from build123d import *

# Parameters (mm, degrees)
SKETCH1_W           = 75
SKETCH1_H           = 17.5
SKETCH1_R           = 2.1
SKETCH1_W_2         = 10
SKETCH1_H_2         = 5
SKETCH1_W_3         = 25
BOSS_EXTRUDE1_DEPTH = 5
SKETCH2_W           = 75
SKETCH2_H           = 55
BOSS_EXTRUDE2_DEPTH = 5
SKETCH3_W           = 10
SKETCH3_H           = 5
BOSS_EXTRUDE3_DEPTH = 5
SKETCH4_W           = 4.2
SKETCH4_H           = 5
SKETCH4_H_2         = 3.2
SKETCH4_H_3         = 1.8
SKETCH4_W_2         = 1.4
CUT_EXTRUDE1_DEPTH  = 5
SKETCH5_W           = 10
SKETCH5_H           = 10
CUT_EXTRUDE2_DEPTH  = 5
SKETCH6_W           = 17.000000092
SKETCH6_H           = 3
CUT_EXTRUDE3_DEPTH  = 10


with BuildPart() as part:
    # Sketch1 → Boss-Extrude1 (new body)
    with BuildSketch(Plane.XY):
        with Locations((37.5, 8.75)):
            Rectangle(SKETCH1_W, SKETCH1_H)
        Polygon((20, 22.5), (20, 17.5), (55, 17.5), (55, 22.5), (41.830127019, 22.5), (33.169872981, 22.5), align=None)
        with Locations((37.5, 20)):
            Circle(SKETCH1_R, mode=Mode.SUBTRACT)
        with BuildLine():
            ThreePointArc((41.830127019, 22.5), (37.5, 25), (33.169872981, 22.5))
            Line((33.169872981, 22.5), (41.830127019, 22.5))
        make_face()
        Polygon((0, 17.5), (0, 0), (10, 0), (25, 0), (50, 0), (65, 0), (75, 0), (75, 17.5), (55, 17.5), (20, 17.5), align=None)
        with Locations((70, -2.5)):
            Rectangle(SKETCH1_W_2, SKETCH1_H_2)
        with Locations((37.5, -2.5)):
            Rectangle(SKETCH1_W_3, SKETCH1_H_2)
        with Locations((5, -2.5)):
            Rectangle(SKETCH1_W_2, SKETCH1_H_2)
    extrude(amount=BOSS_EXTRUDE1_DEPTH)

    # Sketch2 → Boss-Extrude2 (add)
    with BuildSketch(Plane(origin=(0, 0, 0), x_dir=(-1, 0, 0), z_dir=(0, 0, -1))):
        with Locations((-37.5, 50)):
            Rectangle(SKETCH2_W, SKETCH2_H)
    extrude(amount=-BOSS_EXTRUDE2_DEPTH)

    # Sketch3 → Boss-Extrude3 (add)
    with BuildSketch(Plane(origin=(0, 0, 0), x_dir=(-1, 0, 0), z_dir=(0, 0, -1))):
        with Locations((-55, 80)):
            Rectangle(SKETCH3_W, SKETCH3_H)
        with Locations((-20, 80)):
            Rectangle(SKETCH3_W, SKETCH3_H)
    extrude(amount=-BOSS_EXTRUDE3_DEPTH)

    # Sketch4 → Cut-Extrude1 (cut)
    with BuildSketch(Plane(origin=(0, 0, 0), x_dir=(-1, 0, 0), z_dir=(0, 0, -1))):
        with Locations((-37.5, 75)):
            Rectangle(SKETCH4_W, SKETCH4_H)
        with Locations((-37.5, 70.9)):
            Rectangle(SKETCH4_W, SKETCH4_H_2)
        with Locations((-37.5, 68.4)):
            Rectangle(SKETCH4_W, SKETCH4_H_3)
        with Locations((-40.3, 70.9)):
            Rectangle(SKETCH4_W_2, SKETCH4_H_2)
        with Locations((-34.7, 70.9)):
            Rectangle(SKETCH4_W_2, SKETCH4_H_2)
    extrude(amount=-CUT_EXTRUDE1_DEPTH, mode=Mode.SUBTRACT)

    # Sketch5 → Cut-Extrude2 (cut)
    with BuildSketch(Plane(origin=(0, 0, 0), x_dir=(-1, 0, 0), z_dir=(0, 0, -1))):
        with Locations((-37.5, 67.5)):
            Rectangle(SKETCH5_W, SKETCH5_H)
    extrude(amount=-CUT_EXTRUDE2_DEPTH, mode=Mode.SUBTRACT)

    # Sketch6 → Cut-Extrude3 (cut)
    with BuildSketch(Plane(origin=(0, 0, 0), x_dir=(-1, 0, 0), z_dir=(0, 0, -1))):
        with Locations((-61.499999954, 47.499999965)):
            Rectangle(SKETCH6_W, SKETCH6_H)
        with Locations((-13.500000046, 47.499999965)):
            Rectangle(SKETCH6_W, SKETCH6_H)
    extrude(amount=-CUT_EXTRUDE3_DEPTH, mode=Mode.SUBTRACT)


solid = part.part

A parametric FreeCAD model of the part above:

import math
import FreeCAD as App
import Part
import Sketcher
from FreeCAD import Vector
Q = App.Units.Quantity

doc = App.newDocument("Part")
params = doc.addObject("Spreadsheet::Sheet", "Params")
for row, (alias, value) in enumerate([
    ("sketch1_radius", "5 mm"),
    ("sketch1_diameter", "4.2 mm"),
    ("sketch1_width", "20 mm"),
    ("sketch1_width2", "10 mm"),
    ("sketch1_width3", "15 mm"),
    ("pad1_length", "5 mm"),
    ("sketch2_width", "75 mm"),
    ("sketch2_height", "55 mm"),
    ("pad2_length", "5 mm"),
    ("sketch3_width", "10 mm"),
    ("sketch3_height", "5 mm"),
    ("pad3_length", "5 mm"),
    ("sketch4_height", "5 mm"),
    ("sketch4_width", "1.4 mm"),
    ("sketch4_width2", "4.2 mm"),
    ("sketch4_height2", "3.2 mm"),
    ("sketch4_height3", "1.8 mm"),
    ("pocket1_length", "5 mm"),
    ("sketch5_width", "10 mm"),
    ("pocket2_length", "5 mm"),
    ("sketch6_width", "17 mm"),
    ("sketch6_height", "3 mm"),
    ("pocket3_length", "10 mm"),
], start=1):
    params.set(f"A{row}", alias)
    params.set(f"B{row}", "=" + value)
    params.setAlias(f"B{row}", alias)

body = doc.addObject("PartDesign::Body", "Body")

# Sketch on XY plane
sketch1 = doc.addObject("Sketcher::SketchObject", "Sketch")
body.addObject(sketch1)
sketch1.AttachmentSupport = (doc.XY_Plane, [""])
sketch1.MapMode = "FlatFace"
sketch1.addGeometry([
    Part.LineSegment(Vector(20, 17.5, 0), Vector(0, 17.5, 0)),  # 0
    Part.LineSegment(Vector(0, 17.5, 0), Vector(0, -5, 0)),  # 1
    Part.LineSegment(Vector(0, -5, 0), Vector(10, -5, 0)),  # 2
    Part.LineSegment(Vector(10, -5, 0), Vector(10, 0, 0)),  # 3
    Part.LineSegment(Vector(10, 0, 0), Vector(25, 0, 0)),  # 4
    Part.LineSegment(Vector(25, 0, 0), Vector(25, -5, 0)),  # 5
    Part.LineSegment(Vector(25, -5, 0), Vector(50, -5, 0)),  # 6
    Part.LineSegment(Vector(50, -5, 0), Vector(50, 0, 0)),  # 7
    Part.LineSegment(Vector(50, 0, 0), Vector(65, 0, 0)),  # 8
    Part.LineSegment(Vector(65, 0, 0), Vector(65, -5, 0)),  # 9
    Part.LineSegment(Vector(65, -5, 0), Vector(75, -5, 0)),  # 10
    Part.LineSegment(Vector(75, -5, 0), Vector(75, 17.5, 0)),  # 11
    Part.LineSegment(Vector(75, 17.5, 0), Vector(55, 17.5, 0)),  # 12
    Part.LineSegment(Vector(55, 17.5, 0), Vector(55, 22.5, 0)),  # 13
    Part.LineSegment(Vector(55, 22.5, 0), Vector(41.8, 22.5, 0)),  # 14
    Part.ArcOfCircle(Part.Circle(Vector(37.5, 20, 0), Vector(0, 0, 1), 5), math.radians(30), math.radians(150)),  # 15
    Part.LineSegment(Vector(33.2, 22.5, 0), Vector(20, 22.5, 0)),  # 16
    Part.LineSegment(Vector(20, 22.5, 0), Vector(20, 17.5, 0)),  # 17
    Part.Circle(Vector(37.5, 20, 0), Vector(0, 0, 1), 2.1),  # 18
], False)
sketch1.addConstraint([
    Sketcher.Constraint("Coincident", 0, 2, 1, 1),
    Sketcher.Constraint("Coincident", 1, 2, 2, 1),
    Sketcher.Constraint("Coincident", 2, 2, 3, 1),
    Sketcher.Constraint("Coincident", 3, 2, 4, 1),
    Sketcher.Constraint("Coincident", 4, 2, 5, 1),
    Sketcher.Constraint("Coincident", 5, 2, 6, 1),
    Sketcher.Constraint("Coincident", 6, 2, 7, 1),
    Sketcher.Constraint("Coincident", 7, 2, 8, 1),
    Sketcher.Constraint("Coincident", 8, 2, 9, 1),
    Sketcher.Constraint("Coincident", 9, 2, 10, 1),
    Sketcher.Constraint("Coincident", 10, 2, 11, 1),
    Sketcher.Constraint("Coincident", 11, 2, 12, 1),
    Sketcher.Constraint("Coincident", 12, 2, 13, 1),
    Sketcher.Constraint("Coincident", 13, 2, 14, 1),
    Sketcher.Constraint("Coincident", 14, 2, 15, 1),
    Sketcher.Constraint("Coincident", 15, 2, 16, 1),
    Sketcher.Constraint("Coincident", 16, 2, 17, 1),
    Sketcher.Constraint("Coincident", 17, 2, 0, 1),
    Sketcher.Constraint("Horizontal", 0),
    Sketcher.Constraint("Vertical", 1),
    Sketcher.Constraint("Horizontal", 2),
    Sketcher.Constraint("Vertical", 3),
    Sketcher.Constraint("Horizontal", 4),
    Sketcher.Constraint("Vertical", 5),
    Sketcher.Constraint("Horizontal", 6),
    Sketcher.Constraint("Vertical", 7),
    Sketcher.Constraint("Horizontal", 8),
    Sketcher.Constraint("Vertical", 9),
    Sketcher.Constraint("Horizontal", 10),
    Sketcher.Constraint("Vertical", 11),
    Sketcher.Constraint("Horizontal", 12),
    Sketcher.Constraint("Vertical", 13),
    Sketcher.Constraint("Horizontal", 14),
    Sketcher.Constraint("Horizontal", 16),
    Sketcher.Constraint("Vertical", 17),
    Sketcher.Constraint("Coincident", 18, 3, 15, 3),
    Sketcher.Constraint("PointOnObject", 0, 2, -2),
    Sketcher.Constraint("PointOnObject", 3, 2, -1),
    Sketcher.Constraint("PointOnObject", 7, 2, -1),
    Sketcher.Constraint("Horizontal", 2, 2, 5, 2),
    Sketcher.Constraint("Horizontal", 6, 2, 9, 2),
    Sketcher.Constraint("Horizontal", 0, 2, 11, 2),
    Sketcher.Constraint("Horizontal", 14, 2, 15, 2),
    Sketcher.Constraint("Equal", 4, 8),
    Sketcher.Constraint("Equal", 2, 10),
    Sketcher.Constraint("Equal", 0, 12),
    Sketcher.Constraint("Equal", 14, 16),
    Sketcher.Constraint("Equal", 9, 13),
    Sketcher.Constraint("Radius", 15, Q("5 mm")),
    Sketcher.Constraint("Diameter", 18, Q("4.2 mm")),
    Sketcher.Constraint("DistanceX", 0, 2, 0, 1, Q("20 mm")),
    Sketcher.Constraint("DistanceX", 2, 1, 2, 2, Q("10 mm")),
    Sketcher.Constraint("DistanceX", 4, 1, 4, 2, Q("15 mm")),
    Sketcher.Constraint("DistanceX", 6, 1, 6, 2, Q("25 mm")),
    Sketcher.Constraint("DistanceY", 3, 1, 3, 2, Q("5 mm")),
    Sketcher.Constraint("DistanceY", 1, 2, 1, 1, Q("22.5 mm")),
    Sketcher.Constraint("DistanceY", -1, 1, 15, 3, Q("20 mm")),
])
sketch1.setExpression("Constraints[48]", "Params.sketch1_radius")
sketch1.setExpression("Constraints[49]", "Params.sketch1_diameter")
sketch1.setExpression("Constraints[50]", "Params.sketch1_width")
sketch1.setExpression("Constraints[51]", "Params.sketch1_width2")
sketch1.setExpression("Constraints[52]", "Params.sketch1_width3")
pad1 = doc.addObject("PartDesign::Pad", "Pad")
body.addObject(pad1)
pad1.Profile = sketch1
pad1.setExpression("Length", "Params.pad1_length")

# Sketch on XY plane
sketch2 = doc.addObject("Sketcher::SketchObject", "Sketch001")
body.addObject(sketch2)
sketch2.AttachmentSupport = (doc.XY_Plane, [""])
sketch2.MapMode = "FlatFace"
sketch2.addGeometry([
    Part.LineSegment(Vector(75, 78, 0), Vector(75, 22, 0)),
    Part.LineSegment(Vector(75, 22, 0), Vector(0, 22, 0)),
    Part.LineSegment(Vector(0, 22, 0), Vector(0, 78, 0)),
    Part.LineSegment(Vector(0, 78, 0), Vector(75, 78, 0)),
], False)
sketch2.addConstraint([
    Sketcher.Constraint("Coincident", 0, 2, 1, 1),
    Sketcher.Constraint("Coincident", 1, 2, 2, 1),
    Sketcher.Constraint("Coincident", 2, 2, 3, 1),
    Sketcher.Constraint("Coincident", 3, 2, 0, 1),
    Sketcher.Constraint("Vertical", 0),
    Sketcher.Constraint("Horizontal", 1),
    Sketcher.Constraint("Vertical", 2),
    Sketcher.Constraint("Horizontal", 3),
    Sketcher.Constraint("PointOnObject", 1, 2, -2),
    Sketcher.Constraint("DistanceX", 1, 2, 1, 1, Q("75 mm")),
    Sketcher.Constraint("DistanceY", 0, 2, 0, 1, Q("55 mm")),
    Sketcher.Constraint("DistanceY", -1, 1, 0, 2, Q("22.5 mm")),
])
sketch2.setExpression("Constraints[9]", "Params.sketch2_width")
sketch2.setExpression("Constraints[10]", "Params.sketch2_height")
pad2 = doc.addObject("PartDesign::Pad", "Pad001")
body.addObject(pad2)
pad2.Profile = sketch2
pad2.setExpression("Length", "Params.pad2_length")

# Sketch on XY plane
sketch3 = doc.addObject("Sketcher::SketchObject", "Sketch002")
body.addObject(sketch3)
sketch3.AttachmentSupport = (doc.XY_Plane, [""])
sketch3.MapMode = "FlatFace"
sketch3.addGeometry([
    Part.LineSegment(Vector(60, 82, 0), Vector(60, 78, 0)),  # 0
    Part.LineSegment(Vector(60, 78, 0), Vector(50, 78, 0)),  # 1
    Part.LineSegment(Vector(50, 78, 0), Vector(50, 82, 0)),  # 2
    Part.LineSegment(Vector(50, 82, 0), Vector(60, 82, 0)),  # 3
    Part.LineSegment(Vector(25, 82, 0), Vector(25, 78, 0)),  # 4
    Part.LineSegment(Vector(25, 78, 0), Vector(15, 78, 0)),  # 5
    Part.LineSegment(Vector(15, 78, 0), Vector(15, 82, 0)),  # 6
    Part.LineSegment(Vector(15, 82, 0), Vector(25, 82, 0)),  # 7
], False)
sketch3.addConstraint([
    Sketcher.Constraint("Coincident", 0, 2, 1, 1),
    Sketcher.Constraint("Coincident", 1, 2, 2, 1),
    Sketcher.Constraint("Coincident", 2, 2, 3, 1),
    Sketcher.Constraint("Coincident", 3, 2, 0, 1),
    Sketcher.Constraint("Coincident", 4, 2, 5, 1),
    Sketcher.Constraint("Coincident", 5, 2, 6, 1),
    Sketcher.Constraint("Coincident", 6, 2, 7, 1),
    Sketcher.Constraint("Coincident", 7, 2, 4, 1),
    Sketcher.Constraint("Vertical", 0),
    Sketcher.Constraint("Horizontal", 1),
    Sketcher.Constraint("Vertical", 2),
    Sketcher.Constraint("Horizontal", 3),
    Sketcher.Constraint("Vertical", 4),
    Sketcher.Constraint("Horizontal", 5),
    Sketcher.Constraint("Vertical", 6),
    Sketcher.Constraint("Horizontal", 7),
    Sketcher.Constraint("Horizontal", 1, 2, 4, 2),
    Sketcher.Constraint("Horizontal", 3, 2, 6, 2),
    Sketcher.Constraint("Equal", 3, 5),
    Sketcher.Constraint("DistanceX", 1, 2, 1, 1, Q("10 mm")),
    Sketcher.Constraint("DistanceY", 0, 2, 0, 1, Q("5 mm")),
    Sketcher.Constraint("DistanceX", -1, 1, 0, 2, Q("60 mm")),
    Sketcher.Constraint("DistanceX", -1, 1, 4, 2, Q("25 mm")),
    Sketcher.Constraint("DistanceY", -1, 1, 0, 2, Q("77.5 mm")),
])
sketch3.setExpression("Constraints[19]", "Params.sketch3_width")
sketch3.setExpression("Constraints[20]", "Params.sketch3_height")
pad3 = doc.addObject("PartDesign::Pad", "Pad002")
body.addObject(pad3)
pad3.Profile = sketch3
pad3.setExpression("Length", "Params.pad3_length")

# Sketch on XY plane
sketch4 = doc.addObject("Sketcher::SketchObject", "Sketch003")
body.addObject(sketch4)
sketch4.AttachmentSupport = (doc.XY_Plane, [""])
sketch4.MapMode = "FlatFace"
sketch4.addGeometry([
    Part.LineSegment(Vector(39.6, 77.5, 0), Vector(39.6, 72.5, 0)),  # 0
    Part.LineSegment(Vector(39.6, 72.5, 0), Vector(41, 72.5, 0)),  # 1
    Part.LineSegment(Vector(41, 72.5, 0), Vector(41, 69.3, 0)),  # 2
    Part.LineSegment(Vector(41, 69.3, 0), Vector(39.6, 69.3, 0)),  # 3
    Part.LineSegment(Vector(39.6, 69.3, 0), Vector(39.6, 67.5, 0)),  # 4
    Part.LineSegment(Vector(39.6, 67.5, 0), Vector(35.4, 67.5, 0)),  # 5
    Part.LineSegment(Vector(35.4, 67.5, 0), Vector(35.4, 69.3, 0)),  # 6
    Part.LineSegment(Vector(35.4, 69.3, 0), Vector(34, 69.3, 0)),  # 7
    Part.LineSegment(Vector(34, 69.3, 0), Vector(34, 72.5, 0)),  # 8
    Part.LineSegment(Vector(34, 72.5, 0), Vector(35.4, 72.5, 0)),  # 9
    Part.LineSegment(Vector(35.4, 72.5, 0), Vector(35.4, 77.5, 0)),  # 10
    Part.LineSegment(Vector(35.4, 77.5, 0), Vector(39.6, 77.5, 0)),  # 11
], False)
sketch4.addConstraint([
    Sketcher.Constraint("Coincident", 0, 2, 1, 1),
    Sketcher.Constraint("Coincident", 1, 2, 2, 1),
    Sketcher.Constraint("Coincident", 2, 2, 3, 1),
    Sketcher.Constraint("Coincident", 3, 2, 4, 1),
    Sketcher.Constraint("Coincident", 4, 2, 5, 1),
    Sketcher.Constraint("Coincident", 5, 2, 6, 1),
    Sketcher.Constraint("Coincident", 6, 2, 7, 1),
    Sketcher.Constraint("Coincident", 7, 2, 8, 1),
    Sketcher.Constraint("Coincident", 8, 2, 9, 1),
    Sketcher.Constraint("Coincident", 9, 2, 10, 1),
    Sketcher.Constraint("Coincident", 10, 2, 11, 1),
    Sketcher.Constraint("Coincident", 11, 2, 0, 1),
    Sketcher.Constraint("Vertical", 0),
    Sketcher.Constraint("Horizontal", 1),
    Sketcher.Constraint("Vertical", 2),
    Sketcher.Constraint("Horizontal", 3),
    Sketcher.Constraint("Vertical", 4),
    Sketcher.Constraint("Horizontal", 5),
    Sketcher.Constraint("Vertical", 6),
    Sketcher.Constraint("Horizontal", 7),
    Sketcher.Constraint("Vertical", 8),
    Sketcher.Constraint("Horizontal", 9),
    Sketcher.Constraint("Vertical", 10),
    Sketcher.Constraint("Horizontal", 11),
    Sketcher.Constraint("Horizontal", 3, 2, 6, 2),
    Sketcher.Constraint("Horizontal", 1, 2, 8, 2),
    Sketcher.Constraint("Vertical", 0, 2, 3, 2),
    Sketcher.Constraint("Vertical", 6, 2, 9, 2),
    Sketcher.Constraint("Equal", 3, 7),
    Sketcher.Constraint("DistanceY", 0, 2, 0, 1, Q("5 mm")),
    Sketcher.Constraint("DistanceX", 1, 1, 1, 2, Q("1.4 mm")),
    Sketcher.Constraint("DistanceX", 5, 2, 5, 1, Q("4.2 mm")),
    Sketcher.Constraint("DistanceY", 2, 2, 2, 1, Q("3.2 mm")),
    Sketcher.Constraint("DistanceY", 4, 2, 4, 1, Q("1.8 mm")),
    Sketcher.Constraint("DistanceX", -1, 1, 1, 2, Q("41 mm")),
    Sketcher.Constraint("DistanceY", -1, 1, 0, 2, Q("72.5 mm")),
])
sketch4.setExpression("Constraints[29]", "Params.sketch4_height")
sketch4.setExpression("Constraints[30]", "Params.sketch4_width")
sketch4.setExpression("Constraints[31]", "Params.sketch4_width2")
sketch4.setExpression("Constraints[32]", "Params.sketch4_height2")
sketch4.setExpression("Constraints[33]", "Params.sketch4_height3")
pocket1 = doc.addObject("PartDesign::Pocket", "Pocket")
body.addObject(pocket1)
pocket1.Profile = sketch4
pocket1.setExpression("Length", "Params.pocket1_length")
pocket1.Reversed = True

# Sketch on XY plane
sketch5 = doc.addObject("Sketcher::SketchObject", "Sketch004")
body.addObject(sketch5)
sketch5.AttachmentSupport = (doc.XY_Plane, [""])
sketch5.MapMode = "FlatFace"
sketch5.addGeometry([
    Part.LineSegment(Vector(42, 72, 0), Vector(42, 62, 0)),
    Part.LineSegment(Vector(42, 62, 0), Vector(32, 62, 0)),
    Part.LineSegment(Vector(32, 62, 0), Vector(32, 72, 0)),
    Part.LineSegment(Vector(32, 72, 0), Vector(42, 72, 0)),
], False)
sketch5.addConstraint([
    Sketcher.Constraint("Coincident", 0, 2, 1, 1),
    Sketcher.Constraint("Coincident", 1, 2, 2, 1),
    Sketcher.Constraint("Coincident", 2, 2, 3, 1),
    Sketcher.Constraint("Coincident", 3, 2, 0, 1),
    Sketcher.Constraint("Vertical", 0),
    Sketcher.Constraint("Horizontal", 1),
    Sketcher.Constraint("Vertical", 2),
    Sketcher.Constraint("Horizontal", 3),
    Sketcher.Constraint("Equal", 3, 0),
    Sketcher.Constraint("DistanceX", 1, 2, 1, 1, Q("10 mm")),
    Sketcher.Constraint("DistanceX", -1, 1, 0, 2, Q("42.5 mm")),
    Sketcher.Constraint("DistanceY", -1, 1, 0, 2, Q("62.5 mm")),
])
sketch5.setExpression("Constraints[9]", "Params.sketch5_width")
pocket2 = doc.addObject("PartDesign::Pocket", "Pocket001")
body.addObject(pocket2)
pocket2.Profile = sketch5
pocket2.setExpression("Length", "Params.pocket2_length")
pocket2.Reversed = True

# Sketch on XY plane
sketch6 = doc.addObject("Sketcher::SketchObject", "Sketch005")
body.addObject(sketch6)
sketch6.AttachmentSupport = (doc.XY_Plane, [""])
sketch6.MapMode = "FlatFace"
sketch6.addGeometry([
    Part.LineSegment(Vector(70, 49, 0), Vector(70, 46, 0)),  # 0
    Part.LineSegment(Vector(70, 46, 0), Vector(53, 46, 0)),  # 1
    Part.LineSegment(Vector(53, 46, 0), Vector(53, 49, 0)),  # 2
    Part.LineSegment(Vector(53, 49, 0), Vector(70, 49, 0)),  # 3
    Part.LineSegment(Vector(22, 49, 0), Vector(22, 46, 0)),  # 4
    Part.LineSegment(Vector(22, 46, 0), Vector(5, 46, 0)),  # 5
    Part.LineSegment(Vector(5, 46, 0), Vector(5, 49, 0)),  # 6
    Part.LineSegment(Vector(5, 49, 0), Vector(22, 49, 0)),  # 7
], False)
sketch6.addConstraint([
    Sketcher.Constraint("Coincident", 0, 2, 1, 1),
    Sketcher.Constraint("Coincident", 1, 2, 2, 1),
    Sketcher.Constraint("Coincident", 2, 2, 3, 1),
    Sketcher.Constraint("Coincident", 3, 2, 0, 1),
    Sketcher.Constraint("Coincident", 4, 2, 5, 1),
    Sketcher.Constraint("Coincident", 5, 2, 6, 1),
    Sketcher.Constraint("Coincident", 6, 2, 7, 1),
    Sketcher.Constraint("Coincident", 7, 2, 4, 1),
    Sketcher.Constraint("Vertical", 0),
    Sketcher.Constraint("Horizontal", 1),
    Sketcher.Constraint("Vertical", 2),
    Sketcher.Constraint("Horizontal", 3),
    Sketcher.Constraint("Vertical", 4),
    Sketcher.Constraint("Horizontal", 5),
    Sketcher.Constraint("Vertical", 6),
    Sketcher.Constraint("Horizontal", 7),
    Sketcher.Constraint("Horizontal", 1, 2, 4, 2),
    Sketcher.Constraint("Horizontal", 3, 2, 6, 2),
    Sketcher.Constraint("Equal", 3, 5),
    Sketcher.Constraint("DistanceX", 1, 2, 1, 1, Q("17 mm")),
    Sketcher.Constraint("DistanceY", 0, 2, 0, 1, Q("3 mm")),
    Sketcher.Constraint("DistanceX", -1, 1, 0, 2, Q("70 mm")),
    Sketcher.Constraint("DistanceY", -1, 1, 0, 2, Q("46 mm")),
    Sketcher.Constraint("DistanceX", -1, 1, 4, 2, Q("22 mm")),
])
sketch6.setExpression("Constraints[19]", "Params.sketch6_width")
sketch6.setExpression("Constraints[20]", "Params.sketch6_height")
pocket3 = doc.addObject("PartDesign::Pocket", "Pocket002")
body.addObject(pocket3)
pocket3.Profile = sketch6
pocket3.setExpression("Length", "Params.pocket3_length")
pocket3.Reversed = True

doc.recompute()
